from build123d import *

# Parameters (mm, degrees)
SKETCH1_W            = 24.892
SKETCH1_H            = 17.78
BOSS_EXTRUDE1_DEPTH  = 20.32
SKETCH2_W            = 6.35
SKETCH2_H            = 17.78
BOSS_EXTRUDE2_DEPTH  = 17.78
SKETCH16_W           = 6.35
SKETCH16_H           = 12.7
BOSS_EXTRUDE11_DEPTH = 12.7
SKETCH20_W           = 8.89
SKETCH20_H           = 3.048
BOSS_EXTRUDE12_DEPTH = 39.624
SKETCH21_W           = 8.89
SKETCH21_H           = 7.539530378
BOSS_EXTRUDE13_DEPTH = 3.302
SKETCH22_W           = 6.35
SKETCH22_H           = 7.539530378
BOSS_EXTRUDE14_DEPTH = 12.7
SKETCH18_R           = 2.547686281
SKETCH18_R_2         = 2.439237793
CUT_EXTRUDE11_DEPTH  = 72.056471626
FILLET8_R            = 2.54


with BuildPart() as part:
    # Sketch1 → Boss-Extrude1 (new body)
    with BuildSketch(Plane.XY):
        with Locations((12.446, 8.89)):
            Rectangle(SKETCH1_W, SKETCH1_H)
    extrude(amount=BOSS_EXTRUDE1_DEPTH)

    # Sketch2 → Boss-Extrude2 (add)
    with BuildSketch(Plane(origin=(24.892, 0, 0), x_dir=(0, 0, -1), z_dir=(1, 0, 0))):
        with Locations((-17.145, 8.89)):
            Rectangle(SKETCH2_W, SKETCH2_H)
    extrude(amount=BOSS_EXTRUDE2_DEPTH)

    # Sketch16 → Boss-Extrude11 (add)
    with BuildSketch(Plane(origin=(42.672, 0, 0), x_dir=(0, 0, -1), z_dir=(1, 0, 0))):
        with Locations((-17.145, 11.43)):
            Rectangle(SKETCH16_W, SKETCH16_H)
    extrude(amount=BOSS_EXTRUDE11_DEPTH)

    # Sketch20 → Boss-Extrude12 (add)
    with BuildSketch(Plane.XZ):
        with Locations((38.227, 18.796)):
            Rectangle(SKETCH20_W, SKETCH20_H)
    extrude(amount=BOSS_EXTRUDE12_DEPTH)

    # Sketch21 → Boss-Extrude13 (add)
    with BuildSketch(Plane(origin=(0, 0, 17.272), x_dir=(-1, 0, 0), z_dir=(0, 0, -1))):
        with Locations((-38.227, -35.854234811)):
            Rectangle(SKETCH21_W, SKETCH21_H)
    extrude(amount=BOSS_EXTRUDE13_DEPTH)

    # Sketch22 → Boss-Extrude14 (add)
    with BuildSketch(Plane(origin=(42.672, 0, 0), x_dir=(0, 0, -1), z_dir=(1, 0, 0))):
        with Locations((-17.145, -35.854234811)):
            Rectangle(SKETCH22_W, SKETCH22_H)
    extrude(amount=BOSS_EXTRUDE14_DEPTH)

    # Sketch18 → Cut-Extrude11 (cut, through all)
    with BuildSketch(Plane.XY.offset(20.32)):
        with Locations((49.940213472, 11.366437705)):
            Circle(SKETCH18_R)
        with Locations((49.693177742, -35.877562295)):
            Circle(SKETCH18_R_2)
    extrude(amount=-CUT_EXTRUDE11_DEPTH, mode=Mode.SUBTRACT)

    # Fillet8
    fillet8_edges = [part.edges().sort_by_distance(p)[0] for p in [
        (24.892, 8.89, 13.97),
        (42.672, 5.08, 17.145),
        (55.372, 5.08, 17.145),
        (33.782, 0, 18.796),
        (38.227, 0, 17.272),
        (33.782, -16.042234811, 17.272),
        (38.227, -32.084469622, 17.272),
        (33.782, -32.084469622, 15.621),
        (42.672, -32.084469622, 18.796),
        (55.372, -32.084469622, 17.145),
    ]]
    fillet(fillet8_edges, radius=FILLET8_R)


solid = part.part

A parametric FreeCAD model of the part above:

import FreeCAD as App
import Part
import Sketcher

V = App.Vector
Q = App.Units.Quantity


def edges_at(feature, points):
    """Names of the edges that pass closest to the given points."""
    edges = feature.Shape.Edges
    near = lambda p: min(range(len(edges)), key=lambda i: edges[i].distToShape(Part.Vertex(*p))[0])
    return sorted({f"Edge{near(p) + 1}" for p in points})

doc = App.newDocument("Part")
body = doc.addObject("PartDesign::Body", "Body")

sketch1 = doc.addObject("Sketcher::SketchObject", "Sketch")
body.addObject(sketch1)
sketch1.AttachmentSupport = (doc.XY_Plane, [""])
sketch1.MapMode = "FlatFace"
sketch1.addGeometry([
    Part.LineSegment(V(0, 17.78, 0), V(0, 0, 0)),
    Part.LineSegment(V(0, 0, 0), V(24.892, 0, 0)),
    Part.LineSegment(V(24.892, 0, 0), V(24.892, 17.78, 0)),
    Part.LineSegment(V(24.892, 17.78, 0), V(0, 17.78, 0)),
], False)
sketch1.addConstraint([
    Sketcher.Constraint("Coincident", 0, 2, 1, 1),
    Sketcher.Constraint("Coincident", 1, 2, 2, 1),
    Sketcher.Constraint("Coincident", 2, 2, 3, 1),
    Sketcher.Constraint("Coincident", 3, 2, 0, 1),
    Sketcher.Constraint("Vertical", 0),
    Sketcher.Constraint("Horizontal", 1),
    Sketcher.Constraint("Vertical", 2),
    Sketcher.Constraint("Horizontal", 3),
    Sketcher.Constraint("Coincident", 0, 2, -1, 1),
    Sketcher.Constraint("DistanceY", 0, 2, 0, 1, Q("0.7 in")),
    Sketcher.Constraint("DistanceX", 1, 1, 1, 2, Q("0.98 in")),
])
pad1 = doc.addObject("PartDesign::Pad", "Pad")
body.addObject(pad1)
pad1.Profile = sketch1
pad1.Length = Q("0.8 in")

sketch2 = doc.addObject("Sketcher::SketchObject", "Sketch001")
body.addObject(sketch2)
sketch2.AttachmentSupport = (doc.YZ_Plane, [""])
sketch2.MapMode = "FlatFace"
sketch2.AttachmentOffset = App.Placement(V(0, 0, 0.98 * 25.4), App.Rotation())
sketch2.addGeometry([
    Part.LineSegment(V(17.78, 20.32, 0), V(0, 20.32, 0)),
    Part.LineSegment(V(0, 20.32, 0), V(0, 13.97, 0)),
    Part.LineSegment(V(0, 13.97, 0), V(17.78, 13.97, 0)),
    Part.LineSegment(V(17.78, 13.97, 0), V(17.78, 20.32, 0)),
], False)
sketch2.addConstraint([
    Sketcher.Constraint("Coincident", 0, 2, 1, 1),
    Sketcher.Constraint("Coincident", 1, 2, 2, 1),
    Sketcher.Constraint("Coincident", 2, 2, 3, 1),
    Sketcher.Constraint("Coincident", 3, 2, 0, 1),
    Sketcher.Constraint("Horizontal", 0),
    Sketcher.Constraint("Vertical", 1),
    Sketcher.Constraint("Horizontal", 2),
    Sketcher.Constraint("Vertical", 3),
    Sketcher.Constraint("PointOnObject", 0, 2, -2),
    Sketcher.Constraint("DistanceX", 0, 2, 0, 1, Q("0.7 in")),
    Sketcher.Constraint("DistanceY", 1, 2, 1, 1, Q("0.25 in")),
    Sketcher.Constraint("DistanceY", -1, 1, 0, 2, Q("0.8 in")),
])
pad2 = doc.addObject("PartDesign::Pad", "Pad001")
body.addObject(pad2)
pad2.Profile = sketch2
pad2.Length = Q("0.7 in")

sketch3 = doc.addObject("Sketcher::SketchObject", "Sketch002")
body.addObject(sketch3)
sketch3.AttachmentSupport = (doc.YZ_Plane, [""])
sketch3.MapMode = "FlatFace"
sketch3.AttachmentOffset = App.Placement(V(0, 0, 1.68 * 25.4), App.Rotation())
sketch3.addGeometry([
    Part.LineSegment(V(17.78, 20.32, 0), V(5.08, 20.32, 0)),
    Part.LineSegment(V(5.08, 20.32, 0), V(5.08, 13.97, 0)),
    Part.LineSegment(V(5.08, 13.97, 0), V(17.78, 13.97, 0)),
    Part.LineSegment(V(17.78, 13.97, 0), V(17.78, 20.32, 0)),
], False)
sketch3.addConstraint([
    Sketcher.Constraint("Coincident", 0, 2, 1, 1),
    Sketcher.Constraint("Coincident", 1, 2, 2, 1),
    Sketcher.Constraint("Coincident", 2, 2, 3, 1),
    Sketcher.Constraint("Coincident", 3, 2, 0, 1),
    Sketcher.Constraint("Horizontal", 0),
    Sketcher.Constraint("Vertical", 1),
    Sketcher.Constraint("Horizontal", 2),
    Sketcher.Constraint("Vertical", 3),
    Sketcher.Constraint("DistanceX", 0, 2, 0, 1, Q("0.5 in")),
    Sketcher.Constraint("DistanceY", 1, 2, 1, 1, Q("0.25 in")),
    Sketcher.Constraint("DistanceX", -1, 1, 0, 2, Q("0.2 in")),
    Sketcher.Constraint("DistanceY", -1, 1, 0, 2, Q("0.8 in")),
])
pad3 = doc.addObject("PartDesign::Pad", "Pad002")
body.addObject(pad3)
pad3.Profile = sketch3
pad3.Length = Q("0.5 in")

sketch4 = doc.addObject("Sketcher::SketchObject", "Sketch003")
body.addObject(sketch4)
sketch4.AttachmentSupport = (doc.XZ_Plane, [""])
sketch4.MapMode = "FlatFace"
sketch4.addGeometry([
    Part.LineSegment(V(33.782, 20.32, 0), V(33.782, 17.272, 0)),
    Part.LineSegment(V(33.782, 17.272, 0), V(42.672, 17.272, 0)),
    Part.LineSegment(V(42.672, 17.272, 0), V(42.672, 20.32, 0)),
    Part.LineSegment(V(42.672, 20.32, 0), V(33.782, 20.32, 0)),
], False)
sketch4.addConstraint([
    Sketcher.Constraint("Coincident", 0, 2, 1, 1),
    Sketcher.Constraint("Coincident", 1, 2, 2, 1),
    Sketcher.Constraint("Coincident", 2, 2, 3, 1),
    Sketcher.Constraint("Coincident", 3, 2, 0, 1),
    Sketcher.Constraint("Vertical", 0),
    Sketcher.Constraint("Horizontal", 1),
    Sketcher.Constraint("Vertical", 2),
    Sketcher.Constraint("Horizontal", 3),
    Sketcher.Constraint("DistanceX", 1, 1, 1, 2, Q("0.35 in")),
    Sketcher.Constraint("DistanceY", 0, 2, 0, 1, Q("0.12 in")),
    Sketcher.Constraint("DistanceY", -1, 1, 2, 2, Q("0.8 in")),
    Sketcher.Constraint("DistanceX", -1, 1, 0, 2, Q("1.33 in")),
])
pad4 = doc.addObject("PartDesign::Pad", "Pad003")
body.addObject(pad4)
pad4.Profile = sketch4
pad4.Length = Q("1.56 in")

sketch5 = doc.addObject("Sketcher::SketchObject", "Sketch004")
body.addObject(sketch5)
sketch5.AttachmentSupport = (doc.XY_Plane, [""])
sketch5.MapMode = "FlatFace"
sketch5.AttachmentOffset = App.Placement(V(0, 0, 0.68 * 25.4), App.Rotation())
sketch5.addGeometry([
    Part.LineSegment(V(42.672, -32.08447, 0), V(42.672, -39.624, 0)),
    Part.LineSegment(V(42.672, -39.624, 0), V(33.782, -39.624, 0)),
    Part.LineSegment(V(33.782, -39.624, 0), V(33.782, -32.08447, 0)),
    Part.LineSegment(V(33.782, -32.08447, 0), V(42.672, -32.08447, 0)),
], False)
sketch5.addConstraint([
    Sketcher.Constraint("Coincident", 0, 2, 1, 1),
    Sketcher.Constraint("Coincident", 1, 2, 2, 1),
    Sketcher.Constraint("Coincident", 2, 2, 3, 1),
    Sketcher.Constraint("Coincident", 3, 2, 0, 1),
    Sketcher.Constraint("Vertical", 0),
    Sketcher.Constraint("Horizontal", 1),
    Sketcher.Constraint("Vertical", 2),
    Sketcher.Constraint("Horizontal", 3),
    Sketcher.Constraint("DistanceX", 1, 2, 1, 1, Q("0.35 in")),
    Sketcher.Constraint("DistanceX", -1, 1, 0, 2, Q("1.68 in")),
    Sketcher.Constraint("DistanceY", 0, 2, -1, 1, Q("1.56 in")),
    Sketcher.Constraint("DistanceY", 0, 2, 0, 1, Q("7.53953 mm")),
])
pad5 = doc.addObject("PartDesign::Pad", "Pad004")
body.addObject(pad5)
pad5.Profile = sketch5
pad5.Length = Q("0.13 in")
pad5.Reversed = True

sketch6 = doc.addObject("Sketcher::SketchObject", "Sketch005")
body.addObject(sketch6)
sketch6.AttachmentSupport = (doc.YZ_Plane, [""])
sketch6.MapMode = "FlatFace"
sketch6.AttachmentOffset = App.Placement(V(0, 0, 1.68 * 25.4), App.Rotation())
sketch6.addGeometry([
    Part.LineSegment(V(-32.08447, 20.32, 0), V(-39.624, 20.32, 0)),
    Part.LineSegment(V(-39.624, 20.32, 0), V(-39.624, 13.97, 0)),
    Part.LineSegment(V(-39.624, 13.97, 0), V(-32.08447, 13.97, 0)),
    Part.LineSegment(V(-32.08447, 13.97, 0), V(-32.08447, 20.32, 0)),
], False)
sketch6.addConstraint([
    Sketcher.Constraint("Coincident", 0, 2, 1, 1),
    Sketcher.Constraint("Coincident", 1, 2, 2, 1),
    Sketcher.Constraint("Coincident", 2, 2, 3, 1),
    Sketcher.Constraint("Coincident", 3, 2, 0, 1),
    Sketcher.Constraint("Horizontal", 0),
    Sketcher.Constraint("Vertical", 1),
    Sketcher.Constraint("Horizontal", 2),
    Sketcher.Constraint("Vertical", 3),
    Sketcher.Constraint("DistanceY", 1, 2, 1, 1, Q("0.25 in")),
    Sketcher.Constraint("DistanceY", -1, 1, 0, 2, Q("0.8 in")),
    Sketcher.Constraint("DistanceX", 0, 2, -1, 1, Q("1.56 in")),
    Sketcher.Constraint("DistanceX", 0, 2, 0, 1, Q("7.53953 mm")),
])
pad6 = doc.addObject("PartDesign::Pad", "Pad005")
body.addObject(pad6)
pad6.Profile = sketch6
pad6.Length = Q("0.5 in")

sketch7 = doc.addObject("Sketcher::SketchObject", "Sketch006")
body.addObject(sketch7)
sketch7.AttachmentSupport = (doc.XY_Plane, [""])
sketch7.MapMode = "FlatFace"
sketch7.AttachmentOffset = App.Placement(V(0, 0, 0.8 * 25.4), App.Rotation())
sketch7.addGeometry([
    Part.Circle(V(49.940213, 11.366438, 0), V(0, 0, 1), 2.547686),
    Part.Circle(V(49.693178, -35.877562, 0), V(0, 0, 1), 2.439238),
], False)
sketch7.addConstraint([
    Sketcher.Constraint("DistanceY", 1, 3, 0, 3, Q("1.86 in")),
    Sketcher.Constraint("Diameter", 0, Q("5.095373 mm")),
    Sketcher.Constraint("Diameter", 1, Q("4.878476 mm")),
    Sketcher.Constraint("DistanceX", -1, 1, 0, 3, Q("49.940213 mm")),
    Sketcher.Constraint("DistanceY", -1, 1, 0, 3, Q("11.366438 mm")),
    Sketcher.Constraint("DistanceX", -1, 1, 1, 3, Q("49.693178 mm")),
])
pocket1 = doc.addObject("PartDesign::Pocket", "Pocket")
body.addObject(pocket1)
pocket1.Profile = sketch7
pocket1.Type = "ThroughAll"
doc.recompute()

fillet = doc.addObject("PartDesign::Fillet", "Fillet")
body.addObject(fillet)
fillet.Base = (pocket1, edges_at(pocket1, [
    (24.892, 8.89, 13.97),
    (42.672, 5.08, 17.145),
    (55.372, 5.08, 17.145),
    (33.782, 0, 18.796),
    (38.227, 0, 17.272),
    (33.782, -16.042, 17.272),
    (38.227, -32.084, 17.272),
    (33.782, -32.084, 15.621),
    (42.672, -32.084, 18.796),
    (55.372, -32.084, 17.145),
]))
fillet.Radius = Q("0.1 in")

doc.recompute()
